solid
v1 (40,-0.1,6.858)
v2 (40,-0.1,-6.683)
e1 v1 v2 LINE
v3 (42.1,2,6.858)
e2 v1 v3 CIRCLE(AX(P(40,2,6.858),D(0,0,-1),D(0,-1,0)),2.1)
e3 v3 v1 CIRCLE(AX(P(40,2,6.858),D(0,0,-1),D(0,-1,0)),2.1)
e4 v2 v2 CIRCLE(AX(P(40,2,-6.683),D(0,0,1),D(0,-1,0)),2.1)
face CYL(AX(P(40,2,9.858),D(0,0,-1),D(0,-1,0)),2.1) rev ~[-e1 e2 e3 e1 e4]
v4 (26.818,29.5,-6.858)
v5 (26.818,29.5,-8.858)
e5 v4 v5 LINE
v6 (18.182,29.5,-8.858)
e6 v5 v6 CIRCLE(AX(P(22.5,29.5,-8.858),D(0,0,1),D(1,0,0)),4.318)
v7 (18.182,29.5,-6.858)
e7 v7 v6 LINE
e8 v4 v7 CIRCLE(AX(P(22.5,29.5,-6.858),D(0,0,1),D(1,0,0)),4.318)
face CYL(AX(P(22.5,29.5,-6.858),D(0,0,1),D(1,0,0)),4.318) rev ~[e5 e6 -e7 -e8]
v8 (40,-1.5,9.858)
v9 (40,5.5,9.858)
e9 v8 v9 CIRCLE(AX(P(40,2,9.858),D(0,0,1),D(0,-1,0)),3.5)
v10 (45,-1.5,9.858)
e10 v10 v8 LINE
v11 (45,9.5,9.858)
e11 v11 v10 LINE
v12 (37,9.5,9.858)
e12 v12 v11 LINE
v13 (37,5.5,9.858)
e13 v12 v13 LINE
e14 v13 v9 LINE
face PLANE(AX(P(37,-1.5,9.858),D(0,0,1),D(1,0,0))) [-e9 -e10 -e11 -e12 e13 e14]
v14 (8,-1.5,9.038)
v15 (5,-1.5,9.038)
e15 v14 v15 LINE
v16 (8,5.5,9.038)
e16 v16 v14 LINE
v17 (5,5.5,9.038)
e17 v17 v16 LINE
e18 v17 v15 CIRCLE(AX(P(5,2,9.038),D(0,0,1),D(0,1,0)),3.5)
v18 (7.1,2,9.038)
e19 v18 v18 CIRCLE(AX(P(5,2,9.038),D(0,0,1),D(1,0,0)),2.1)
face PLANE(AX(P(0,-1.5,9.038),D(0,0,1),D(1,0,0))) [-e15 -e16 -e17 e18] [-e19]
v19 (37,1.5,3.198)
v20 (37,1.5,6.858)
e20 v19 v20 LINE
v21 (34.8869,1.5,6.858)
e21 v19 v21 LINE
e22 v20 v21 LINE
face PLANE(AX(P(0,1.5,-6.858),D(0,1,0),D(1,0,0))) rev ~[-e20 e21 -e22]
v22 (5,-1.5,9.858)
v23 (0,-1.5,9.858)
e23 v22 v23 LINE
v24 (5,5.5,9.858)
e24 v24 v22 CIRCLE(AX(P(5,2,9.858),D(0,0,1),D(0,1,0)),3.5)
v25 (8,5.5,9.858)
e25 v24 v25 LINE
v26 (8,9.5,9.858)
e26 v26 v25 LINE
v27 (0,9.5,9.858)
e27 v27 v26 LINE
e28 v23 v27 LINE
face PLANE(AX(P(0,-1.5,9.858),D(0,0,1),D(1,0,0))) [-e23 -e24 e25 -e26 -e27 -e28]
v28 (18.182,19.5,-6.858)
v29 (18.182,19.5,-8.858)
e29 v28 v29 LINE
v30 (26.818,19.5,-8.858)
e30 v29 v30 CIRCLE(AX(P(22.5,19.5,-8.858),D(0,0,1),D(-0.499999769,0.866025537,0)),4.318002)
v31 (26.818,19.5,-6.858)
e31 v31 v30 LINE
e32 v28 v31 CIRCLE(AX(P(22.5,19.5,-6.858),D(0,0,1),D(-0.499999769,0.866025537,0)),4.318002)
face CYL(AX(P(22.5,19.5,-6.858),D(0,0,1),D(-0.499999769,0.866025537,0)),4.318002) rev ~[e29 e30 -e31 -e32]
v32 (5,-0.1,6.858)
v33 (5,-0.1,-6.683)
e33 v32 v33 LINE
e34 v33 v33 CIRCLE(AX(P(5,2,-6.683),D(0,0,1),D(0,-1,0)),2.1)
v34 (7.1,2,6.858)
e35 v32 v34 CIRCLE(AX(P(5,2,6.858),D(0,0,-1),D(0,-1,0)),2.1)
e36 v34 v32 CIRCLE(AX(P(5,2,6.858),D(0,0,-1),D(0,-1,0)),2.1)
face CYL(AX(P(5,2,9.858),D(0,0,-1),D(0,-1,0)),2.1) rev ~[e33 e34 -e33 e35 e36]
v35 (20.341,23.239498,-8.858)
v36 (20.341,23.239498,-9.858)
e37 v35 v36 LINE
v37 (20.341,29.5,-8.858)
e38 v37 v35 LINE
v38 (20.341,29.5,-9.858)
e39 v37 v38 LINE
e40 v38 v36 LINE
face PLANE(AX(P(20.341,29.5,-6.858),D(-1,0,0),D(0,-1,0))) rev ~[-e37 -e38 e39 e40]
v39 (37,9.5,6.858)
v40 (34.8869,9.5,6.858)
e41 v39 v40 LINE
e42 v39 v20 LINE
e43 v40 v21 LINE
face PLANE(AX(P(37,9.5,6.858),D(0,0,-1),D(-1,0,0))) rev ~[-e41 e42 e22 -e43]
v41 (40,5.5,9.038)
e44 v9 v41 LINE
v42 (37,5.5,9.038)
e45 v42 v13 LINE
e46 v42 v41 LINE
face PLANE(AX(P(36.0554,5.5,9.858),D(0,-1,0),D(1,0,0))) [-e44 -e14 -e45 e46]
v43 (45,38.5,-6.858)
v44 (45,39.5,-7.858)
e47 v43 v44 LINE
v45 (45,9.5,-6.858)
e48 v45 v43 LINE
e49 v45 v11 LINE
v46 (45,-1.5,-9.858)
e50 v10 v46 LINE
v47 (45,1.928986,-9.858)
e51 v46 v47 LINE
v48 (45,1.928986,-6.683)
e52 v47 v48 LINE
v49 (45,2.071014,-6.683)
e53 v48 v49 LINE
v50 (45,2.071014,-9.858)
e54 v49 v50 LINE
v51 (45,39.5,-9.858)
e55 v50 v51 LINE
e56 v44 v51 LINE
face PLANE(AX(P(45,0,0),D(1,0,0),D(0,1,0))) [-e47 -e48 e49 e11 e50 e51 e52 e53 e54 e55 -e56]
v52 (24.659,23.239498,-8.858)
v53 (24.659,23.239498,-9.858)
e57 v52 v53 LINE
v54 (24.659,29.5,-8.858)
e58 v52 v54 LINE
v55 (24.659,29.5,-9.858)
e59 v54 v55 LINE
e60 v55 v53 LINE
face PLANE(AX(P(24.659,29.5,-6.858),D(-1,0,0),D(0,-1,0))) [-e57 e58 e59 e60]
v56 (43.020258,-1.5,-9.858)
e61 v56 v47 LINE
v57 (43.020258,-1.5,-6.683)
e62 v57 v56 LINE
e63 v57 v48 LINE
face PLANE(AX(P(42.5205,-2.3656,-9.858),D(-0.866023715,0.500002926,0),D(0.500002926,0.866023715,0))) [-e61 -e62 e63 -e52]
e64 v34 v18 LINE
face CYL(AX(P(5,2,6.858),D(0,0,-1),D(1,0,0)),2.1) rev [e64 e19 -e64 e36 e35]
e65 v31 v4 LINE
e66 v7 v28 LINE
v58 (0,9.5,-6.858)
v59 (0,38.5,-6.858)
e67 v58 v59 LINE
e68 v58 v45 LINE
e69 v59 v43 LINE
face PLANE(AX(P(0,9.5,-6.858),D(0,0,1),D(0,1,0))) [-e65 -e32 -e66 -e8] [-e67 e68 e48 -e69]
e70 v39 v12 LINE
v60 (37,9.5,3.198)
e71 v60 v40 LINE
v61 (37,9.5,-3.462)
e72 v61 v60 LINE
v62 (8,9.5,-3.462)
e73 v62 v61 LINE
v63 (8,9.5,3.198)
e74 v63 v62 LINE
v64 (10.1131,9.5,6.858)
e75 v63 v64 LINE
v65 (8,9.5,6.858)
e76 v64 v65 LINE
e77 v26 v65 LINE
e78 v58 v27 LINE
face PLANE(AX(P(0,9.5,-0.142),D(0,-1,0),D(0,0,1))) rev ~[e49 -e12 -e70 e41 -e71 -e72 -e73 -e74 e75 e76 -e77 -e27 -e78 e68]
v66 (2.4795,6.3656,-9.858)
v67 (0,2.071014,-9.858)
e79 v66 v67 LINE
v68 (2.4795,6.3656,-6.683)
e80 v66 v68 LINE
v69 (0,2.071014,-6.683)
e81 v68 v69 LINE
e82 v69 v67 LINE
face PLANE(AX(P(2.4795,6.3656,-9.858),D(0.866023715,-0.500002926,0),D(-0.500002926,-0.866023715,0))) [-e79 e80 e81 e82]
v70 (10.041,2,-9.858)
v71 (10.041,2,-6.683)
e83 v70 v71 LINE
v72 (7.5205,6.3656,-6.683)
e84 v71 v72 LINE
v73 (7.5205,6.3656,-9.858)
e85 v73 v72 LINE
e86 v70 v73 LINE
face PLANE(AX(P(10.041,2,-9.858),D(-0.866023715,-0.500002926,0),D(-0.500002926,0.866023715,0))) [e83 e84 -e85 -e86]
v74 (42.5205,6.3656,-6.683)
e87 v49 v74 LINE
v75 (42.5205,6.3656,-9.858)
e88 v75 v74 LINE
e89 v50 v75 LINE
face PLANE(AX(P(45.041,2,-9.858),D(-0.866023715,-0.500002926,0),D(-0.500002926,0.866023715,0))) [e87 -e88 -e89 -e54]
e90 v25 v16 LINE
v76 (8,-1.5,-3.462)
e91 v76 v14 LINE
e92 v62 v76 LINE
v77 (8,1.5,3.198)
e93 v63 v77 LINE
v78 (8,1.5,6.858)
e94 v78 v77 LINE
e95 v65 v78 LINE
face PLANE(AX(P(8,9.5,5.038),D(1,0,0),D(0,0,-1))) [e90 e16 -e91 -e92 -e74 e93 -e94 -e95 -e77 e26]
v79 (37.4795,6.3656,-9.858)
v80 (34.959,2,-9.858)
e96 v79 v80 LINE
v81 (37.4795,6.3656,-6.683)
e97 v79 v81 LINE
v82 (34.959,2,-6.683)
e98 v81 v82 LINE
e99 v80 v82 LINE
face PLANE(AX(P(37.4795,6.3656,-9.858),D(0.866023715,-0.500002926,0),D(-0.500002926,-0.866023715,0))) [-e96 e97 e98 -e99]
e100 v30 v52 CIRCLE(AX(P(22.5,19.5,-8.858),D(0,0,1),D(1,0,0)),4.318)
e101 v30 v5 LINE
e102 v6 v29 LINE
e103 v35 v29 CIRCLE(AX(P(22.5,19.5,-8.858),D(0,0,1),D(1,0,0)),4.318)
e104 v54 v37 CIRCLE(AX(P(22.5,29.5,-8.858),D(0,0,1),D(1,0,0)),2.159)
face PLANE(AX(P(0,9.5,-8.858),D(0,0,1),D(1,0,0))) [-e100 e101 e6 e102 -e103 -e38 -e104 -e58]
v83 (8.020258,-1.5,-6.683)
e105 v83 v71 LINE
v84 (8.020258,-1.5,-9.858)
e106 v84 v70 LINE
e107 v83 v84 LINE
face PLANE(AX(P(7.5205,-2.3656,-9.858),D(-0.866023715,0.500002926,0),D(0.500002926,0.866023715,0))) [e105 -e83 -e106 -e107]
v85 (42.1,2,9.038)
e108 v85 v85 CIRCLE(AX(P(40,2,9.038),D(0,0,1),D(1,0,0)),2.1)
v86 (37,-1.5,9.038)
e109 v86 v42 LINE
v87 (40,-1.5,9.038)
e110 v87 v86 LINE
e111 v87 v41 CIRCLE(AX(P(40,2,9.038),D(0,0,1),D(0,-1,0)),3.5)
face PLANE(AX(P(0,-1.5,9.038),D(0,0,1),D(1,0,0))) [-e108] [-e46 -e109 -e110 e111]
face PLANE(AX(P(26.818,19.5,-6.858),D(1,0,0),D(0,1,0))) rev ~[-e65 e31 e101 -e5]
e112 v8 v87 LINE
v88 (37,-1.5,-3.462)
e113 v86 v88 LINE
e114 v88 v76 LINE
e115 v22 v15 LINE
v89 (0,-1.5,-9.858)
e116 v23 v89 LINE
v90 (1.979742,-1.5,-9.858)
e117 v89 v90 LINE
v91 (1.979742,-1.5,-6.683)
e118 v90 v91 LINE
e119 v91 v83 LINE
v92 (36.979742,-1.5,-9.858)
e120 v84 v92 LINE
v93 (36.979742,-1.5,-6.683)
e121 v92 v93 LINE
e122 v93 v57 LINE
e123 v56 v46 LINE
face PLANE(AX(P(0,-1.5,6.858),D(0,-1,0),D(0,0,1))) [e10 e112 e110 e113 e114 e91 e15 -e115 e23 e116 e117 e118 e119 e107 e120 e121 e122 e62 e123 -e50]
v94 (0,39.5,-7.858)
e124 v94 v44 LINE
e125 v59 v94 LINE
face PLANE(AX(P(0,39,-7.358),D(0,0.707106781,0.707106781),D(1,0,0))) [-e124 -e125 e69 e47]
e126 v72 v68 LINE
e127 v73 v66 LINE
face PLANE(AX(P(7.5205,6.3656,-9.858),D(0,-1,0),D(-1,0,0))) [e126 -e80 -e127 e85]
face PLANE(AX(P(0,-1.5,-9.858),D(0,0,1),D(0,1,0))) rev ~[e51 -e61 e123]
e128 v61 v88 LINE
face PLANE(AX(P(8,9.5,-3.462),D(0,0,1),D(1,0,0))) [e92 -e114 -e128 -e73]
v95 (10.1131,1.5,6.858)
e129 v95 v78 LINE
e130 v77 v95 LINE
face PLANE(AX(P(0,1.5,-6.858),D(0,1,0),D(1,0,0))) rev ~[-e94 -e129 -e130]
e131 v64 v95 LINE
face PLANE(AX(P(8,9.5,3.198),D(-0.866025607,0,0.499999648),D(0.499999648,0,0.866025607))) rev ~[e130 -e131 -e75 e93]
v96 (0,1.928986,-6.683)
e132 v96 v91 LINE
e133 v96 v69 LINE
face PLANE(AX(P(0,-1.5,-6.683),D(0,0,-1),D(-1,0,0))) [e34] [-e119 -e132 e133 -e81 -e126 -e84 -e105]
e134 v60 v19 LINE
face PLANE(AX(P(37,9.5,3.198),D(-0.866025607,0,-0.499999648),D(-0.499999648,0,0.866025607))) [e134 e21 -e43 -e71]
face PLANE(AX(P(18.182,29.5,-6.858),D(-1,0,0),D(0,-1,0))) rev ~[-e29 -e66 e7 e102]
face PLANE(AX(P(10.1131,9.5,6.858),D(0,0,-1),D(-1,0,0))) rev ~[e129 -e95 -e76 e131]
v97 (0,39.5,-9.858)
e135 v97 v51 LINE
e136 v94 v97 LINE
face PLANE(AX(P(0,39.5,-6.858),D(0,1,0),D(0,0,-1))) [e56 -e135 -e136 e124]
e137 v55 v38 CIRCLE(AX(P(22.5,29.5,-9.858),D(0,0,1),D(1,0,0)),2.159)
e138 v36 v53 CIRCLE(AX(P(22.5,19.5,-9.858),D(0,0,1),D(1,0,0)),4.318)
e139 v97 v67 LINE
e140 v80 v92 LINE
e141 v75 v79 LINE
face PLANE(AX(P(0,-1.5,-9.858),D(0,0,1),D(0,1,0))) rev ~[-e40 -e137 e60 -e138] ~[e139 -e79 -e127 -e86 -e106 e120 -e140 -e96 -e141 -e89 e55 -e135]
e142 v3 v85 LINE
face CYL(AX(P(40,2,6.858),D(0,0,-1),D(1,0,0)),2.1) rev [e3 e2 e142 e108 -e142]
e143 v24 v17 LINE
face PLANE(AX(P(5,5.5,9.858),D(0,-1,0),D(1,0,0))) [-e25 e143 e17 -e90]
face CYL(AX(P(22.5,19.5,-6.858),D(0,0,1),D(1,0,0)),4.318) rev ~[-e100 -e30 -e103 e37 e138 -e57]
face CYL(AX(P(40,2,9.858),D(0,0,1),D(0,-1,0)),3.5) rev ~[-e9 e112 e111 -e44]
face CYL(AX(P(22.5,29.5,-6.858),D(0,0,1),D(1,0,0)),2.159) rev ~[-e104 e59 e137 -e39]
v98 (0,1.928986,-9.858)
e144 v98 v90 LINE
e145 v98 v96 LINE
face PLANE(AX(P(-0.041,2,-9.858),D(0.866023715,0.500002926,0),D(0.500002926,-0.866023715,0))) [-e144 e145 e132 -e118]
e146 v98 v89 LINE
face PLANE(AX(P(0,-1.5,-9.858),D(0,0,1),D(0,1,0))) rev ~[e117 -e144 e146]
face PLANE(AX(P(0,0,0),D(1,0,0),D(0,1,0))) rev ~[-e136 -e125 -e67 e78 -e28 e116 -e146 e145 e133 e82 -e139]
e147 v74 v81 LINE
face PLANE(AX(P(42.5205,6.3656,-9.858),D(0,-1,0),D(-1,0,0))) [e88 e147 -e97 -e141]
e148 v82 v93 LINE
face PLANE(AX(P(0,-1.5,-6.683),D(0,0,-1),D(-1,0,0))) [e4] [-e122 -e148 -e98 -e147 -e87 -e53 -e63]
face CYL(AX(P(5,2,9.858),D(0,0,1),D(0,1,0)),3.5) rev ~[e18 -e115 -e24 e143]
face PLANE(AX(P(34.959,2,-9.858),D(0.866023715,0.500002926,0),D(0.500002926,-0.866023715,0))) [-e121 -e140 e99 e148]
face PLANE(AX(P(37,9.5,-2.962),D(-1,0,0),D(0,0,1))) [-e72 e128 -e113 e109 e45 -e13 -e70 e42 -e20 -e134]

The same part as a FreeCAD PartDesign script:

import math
import FreeCAD as App
import Part
import Sketcher
Q = App.Units.Quantity


def edges_at(feature, points):
    """Names of the edges that pass closest to the given points."""
    edges = feature.Shape.Edges
    near = lambda p: min(range(len(edges)), key=lambda i: edges[i].distToShape(Part.Vertex(*p))[0])
    return sorted({f"Edge{near(p) + 1}" for p in points})


def add_polygon(sketch, points):
    """Adds a closed chain of lines whose ends are joined by coincident constraints."""
    first, n = sketch.GeometryCount, len(points)
    for a, b in zip(points, points[1:] + points[:1]):
        sketch.addGeometry(Part.LineSegment(App.Vector(*a, 0), App.Vector(*b, 0)), False)
    for i in range(n):
        sketch.addConstraint(Sketcher.Constraint("Coincident", first + i, 2, first + (i + 1) % n, 1))

doc = App.newDocument("Part")
params = doc.addObject("Spreadsheet::Sheet", "Params")
for row, (alias, value) in enumerate([
    ("sketch1_height", "3 mm"),
    ("sketch1_width", "41 mm"),
    ("sketch1_width2", "30 mm"),
    ("pad1_length", "45 mm"),
    ("sketch2_diameter", "4.2 mm"),
    ("hole_diameter", "4.2 mm"),
    ("sketch3_radius", "14 mm"),
    ("sketch3_radius2", "1 mm"),
    ("sketch3_width", "12.7 mm"),
    ("sketch3_height", "1.5 mm"),
    ("pocket1_length", "0.82 mm"),
    ("sketch4_radius", "14 mm"),
    ("sketch4_diameter", "4.2 mm"),
    ("sketch4_radius2", "3.5 mm"),
    ("pocket2_length", "0.82 mm"),
    ("sketch5_diameter", "4.2 mm"),
    ("pocket3_length", "3.175 mm"),
    ("chamfer_size", "1 mm"),
    ("sketch7_height", "10 mm"),
    ("pocket5_length", "2 mm"),
    ("sketch8_width", "29 mm"),
    ("sketch8_height", "10.32 mm"),
    ("sketch9_width", "68 mm"),
    ("sketch10_diameter", "4.2 mm"),
    ("sketch10_width", "8 mm"),
    ("sketch10_height", "11 mm"),
    ("pad2_length", "3 mm"),
    ("sketch11_diameter", "4.2 mm"),
    ("sketch11_width", "8 mm"),
    ("sketch11_height", "11 mm"),
    ("pad3_length", "3 mm"),
    ("sketch12_radius", "14 mm"),
    ("sketch12_radius2", "1 mm"),
    ("sketch12_diameter", "4.2 mm"),
    ("sketch12_radius3", "3.5 mm"),
    ("sketch12_width", "35 mm"),
    ("pocket8_length", "0.82 mm"),
    ("sketch13_height", "3.66 mm"),
    ("pad4_length", "8 mm"),
], start=1):
    params.set(f"A{row}", alias)
    params.set(f"B{row}", "=" + value)
    params.setAlias(f"B{row}", alias)

body = doc.addObject("PartDesign::Body", "Body")

sketch1 = doc.addObject("Sketcher::SketchObject", "Sketch")
body.addObject(sketch1)
sketch1.AttachmentSupport = (doc.YZ_Plane, [""])
sketch1.MapMode = "FlatFace"
add_polygon(sketch1, [(-1.5, 9.9), (-1.5, -9.9), (39.5, -9.9), (39.5, -6.9), (9.5, -6.9), (9.5, 6.9), (39.5, 6.9), (39.5, 9.9)])
sketch1.addConstraint([
    Sketcher.Constraint("Vertical", 0),
    Sketcher.Constraint("Horizontal", 1),
    Sketcher.Constraint("Vertical", 2),
    Sketcher.Constraint("Horizontal", 3),
    Sketcher.Constraint("Vertical", 4),
    Sketcher.Constraint("Horizontal", 5),
    Sketcher.Constraint("Vertical", 6),
    Sketcher.Constraint("Horizontal", 7),
    Sketcher.Constraint("Symmetric", 2, 2, 5, 2, -1),
    Sketcher.Constraint("Equal", 2, 6),
    Sketcher.Constraint("DistanceY", 2, 1, 2, 2, Q("3 mm")),
    Sketcher.Constraint("DistanceX", 1, 1, 1, 2, Q("41 mm")),
    Sketcher.Constraint("DistanceX", 3, 2, 3, 1, Q("30 mm")),
    Sketcher.Constraint("DistanceY", 4, 1, 4, 2, Q("13.716 mm")),
    Sketcher.Constraint("DistanceX", 0, 2, -1, 1, Q("1.5 mm")),
])
sketch1.setExpression("Constraints[18]", "Params.sketch1_height")
sketch1.setExpression("Constraints[19]", "Params.sketch1_width")
sketch1.setExpression("Constraints[20]", "Params.sketch1_width2")
pad1 = doc.addObject("PartDesign::Pad", "Pad")
body.addObject(pad1)
pad1.Profile = sketch1
pad1.setExpression("Length", "Params.pad1_length")

sketch2 = doc.addObject("Sketcher::SketchObject", "Sketch001")
body.addObject(sketch2)
sketch2.AttachmentSupport = (doc.XY_Plane, [""])
sketch2.MapMode = "FlatFace"
sketch2.AttachmentOffset = App.Placement(App.Vector(0, 0, 9.858), App.Rotation())
sketch2.addGeometry([
    Part.Circle(App.Vector(5, 2, 0), App.Vector(0, 0, 1), 2.1),
    Part.Circle(App.Vector(40, 2, 0), App.Vector(0, 0, 1), 2.1),
], False)
sketch2.addConstraint([
    Sketcher.Constraint("Equal", 0, 1),
    Sketcher.Constraint("Horizontal", 0, 3, 1, 3),
    Sketcher.Constraint("Diameter", 0, Q("4.2 mm")),
    Sketcher.Constraint("DistanceX", -1, 1, 0, 3, Q("5 mm")),
    Sketcher.Constraint("DistanceY", -1, 1, 0, 3, Q("2 mm")),
    Sketcher.Constraint("DistanceX", -1, 1, 1, 3, Q("40 mm")),
])
sketch2.setExpression("Constraints[2]", "Params.sketch2_diameter")
doc.recompute()
hole = doc.addObject("PartDesign::Hole", "Hole")
body.addObject(hole)
hole.Profile = sketch2
hole.ThreadType = "None"
hole.setExpression("Diameter", "Params.hole_diameter")
hole.DepthType = "ThroughAll"

sketch3 = doc.addObject("Sketcher::SketchObject", "Sketch002")
body.addObject(sketch3)
sketch3.AttachmentSupport = (doc.XY_Plane, [""])
sketch3.MapMode = "FlatFace"
sketch3.AttachmentOffset = App.Placement(App.Vector(0, 0, 9.858), App.Rotation())
sketch3.addGeometry([
    Part.ArcOfCircle(Part.Circle(App.Vector(22.5, 2, 0), App.Vector(0, 0, 1), 14), math.radians(131), math.radians(409)),
    Part.LineSegment(App.Vector(31.6, 12.6, 0), App.Vector(31.6, 14.2, 0)),
    Part.ArcOfCircle(Part.Circle(App.Vector(30.6, 14.2, 0), App.Vector(0, 0, 1), 1), math.radians(0), math.radians(45)),
    Part.LineSegment(App.Vector(31.3, 14.9, 0), App.Vector(29.9, 16.4, 0)),
    Part.LineSegment(App.Vector(29.9, 16.4, 0), App.Vector(29.9, 17.9, 0)),
    Part.ArcOfCircle(Part.Circle(App.Vector(28.9, 17.9, 0), App.Vector(0, 0, 1), 1), math.radians(0), math.radians(90)),
    Part.LineSegment(App.Vector(28.9, 18.9, 0), App.Vector(16.1, 18.9, 0)),
    Part.ArcOfCircle(Part.Circle(App.Vector(16.1, 17.9, 0), App.Vector(0, 0, 1), 1), math.radians(90), math.radians(180)),
    Part.LineSegment(App.Vector(15.2, 17.9, 0), App.Vector(15.2, 16.4, 0)),
    Part.LineSegment(App.Vector(15.2, 16.4, 0), App.Vector(13.7, 14.9, 0)),
    Part.ArcOfCircle(Part.Circle(App.Vector(14.4, 14.2, 0), App.Vector(0, 0, 1), 1), math.radians(135), math.radians(180)),
    Part.LineSegment(App.Vector(13.4, 14.2, 0), App.Vector(13.4, 12.6, 0)),
], False)
sketch3.addConstraint([
    Sketcher.Constraint("Coincident", 0, 2, 1, 1),
    Sketcher.Constraint("Tangent", 1, 2, 2, 1),
    Sketcher.Constraint("Tangent", 2, 2, 3, 1),
    Sketcher.Constraint("Coincident", 3, 2, 4, 1),
    Sketcher.Constraint("Tangent", 4, 2, 5, 1),
    Sketcher.Constraint("Tangent", 5, 2, 6, 1),
    Sketcher.Constraint("Tangent", 6, 2, 7, 1),
    Sketcher.Constraint("Tangent", 7, 2, 8, 1),
    Sketcher.Constraint("Coincident", 8, 2, 9, 1),
    Sketcher.Constraint("Tangent", 9, 2, 10, 1),
    Sketcher.Constraint("Tangent", 10, 2, 11, 1),
    Sketcher.Constraint("Coincident", 11, 2, 0, 1),
    Sketcher.Constraint("Vertical", 1),
    Sketcher.Constraint("Vertical", 4),
    Sketcher.Constraint("Horizontal", 6),
    Sketcher.Constraint("Vertical", 8),
    Sketcher.Constraint("Vertical", 11),
    Sketcher.Constraint("Equal", 2, 5),
    Sketcher.Constraint("Equal", 5, 7),
    Sketcher.Constraint("Equal", 7, 10),
    Sketcher.Constraint("Perpendicular", 3, 9),
    Sketcher.Constraint("Horizontal", 2, 3, 10, 3),
    Sketcher.Constraint("Horizontal", 3, 2, 8, 2),
    Sketcher.Constraint("Horizontal", 2, 2, 9, 2),
    Sketcher.Constraint("Horizontal", 0, 2, 11, 2),
    Sketcher.Constraint("Radius", 0, Q("14 mm")),
    Sketcher.Constraint("Radius", 2, Q("1 mm")),
    Sketcher.Constraint("DistanceX", 6, 2, 6, 1, Q("12.7 mm")),
    Sketcher.Constraint("DistanceY", 4, 1, 4, 2, Q("1.5 mm")),
    Sketcher.Constraint("DistanceY", -1, 1, 0, 3, Q("2 mm")),
    Sketcher.Constraint("DistanceX", -1, 1, 0, 3, Q("22.5 mm")),
    Sketcher.Constraint("DistanceY", 1, 1, 1, 2, Q("1.5857 mm")),
    Sketcher.Constraint("DistanceY", -1, 1, 0, 2, Q("12.624 mm")),
])
sketch3.setExpression("Constraints[25]", "Params.sketch3_radius")
sketch3.setExpression("Constraints[26]", "Params.sketch3_radius2")
sketch3.setExpression("Constraints[27]", "Params.sketch3_width")
sketch3.setExpression("Constraints[28]", "Params.sketch3_height")
pocket1 = doc.addObject("PartDesign::Pocket", "Pocket")
body.addObject(pocket1)
pocket1.Profile = sketch3
pocket1.setExpression("Length", "Params.pocket1_length")

sketch4 = doc.addObject("Sketcher::SketchObject", "Sketch003")
body.addObject(sketch4)
sketch4.AttachmentSupport = (doc.XY_Plane, [""])
sketch4.MapMode = "FlatFace"
sketch4.AttachmentOffset = App.Placement(App.Vector(0, 0, 9.858), App.Rotation())
sketch4.addGeometry([
    Part.ArcOfCircle(Part.Circle(App.Vector(22.5, 2, 0), App.Vector(0, 0, 1), 14), math.radians(-14), math.radians(14)),
    Part.LineSegment(App.Vector(36.1, -1.5, 0), App.Vector(40, -1.5, 0)),
    Part.ArcOfCircle(Part.Circle(App.Vector(40, 2, 0), App.Vector(0, 0, 1), 3.5), math.radians(-90), math.radians(90)),
    Part.LineSegment(App.Vector(40, 5.5, 0), App.Vector(36.1, 5.5, 0)),
    Part.Circle(App.Vector(40, 2, 0), App.Vector(0, 0, 1), 2.1),
    Part.LineSegment(App.Vector(5, -1.5, 0), App.Vector(8.9, -1.5, 0)),
    Part.ArcOfCircle(Part.Circle(App.Vector(22.5, 2, 0), App.Vector(0, 0, 1), 14), math.radians(166), math.radians(194)),
    Part.LineSegment(App.Vector(8.9, 5.5, 0), App.Vector(5, 5.5, 0)),
    Part.ArcOfCircle(Part.Circle(App.Vector(5, 2, 0), App.Vector(0, 0, 1), 3.5), math.radians(90), math.radians(270)),
    Part.Circle(App.Vector(5, 2, 0), App.Vector(0, 0, 1), 2.1),
], False)
sketch4.addConstraint([
    Sketcher.Constraint("Coincident", 0, 1, 1, 1),
    Sketcher.Constraint("Tangent", 1, 2, 2, 1),
    Sketcher.Constraint("Tangent", 2, 2, 3, 1),
    Sketcher.Constraint("Coincident", 3, 2, 0, 2),
    Sketcher.Constraint("Coincident", 5, 2, 6, 2),
    Sketcher.Constraint("Coincident", 6, 1, 7, 1),
    Sketcher.Constraint("Tangent", 7, 2, 8, 1),
    Sketcher.Constraint("Tangent", 8, 2, 5, 1),
    Sketcher.Constraint("Horizontal", 1),
    Sketcher.Constraint("Horizontal", 3),
    Sketcher.Constraint("Horizontal", 5),
    Sketcher.Constraint("Horizontal", 7),
    Sketcher.Constraint("Coincident", 4, 3, 2, 3),
    Sketcher.Constraint("Coincident", 6, 3, 0, 3),
    Sketcher.Constraint("Coincident", 9, 3, 8, 3),
    Sketcher.Constraint("Equal", 0, 6),
    Sketcher.Constraint("Equal", 2, 8),
    Sketcher.Constraint("Equal", 4, 9),
    Sketcher.Constraint("Horizontal", 0, 3, 2, 3),
    Sketcher.Constraint("Horizontal", 6, 3, 8, 3),
    Sketcher.Constraint("Equal", 3, 5),
    Sketcher.Constraint("Radius", 0, Q("14 mm")),
    Sketcher.Constraint("Diameter", 4, Q("4.2 mm")),
    Sketcher.Constraint("Radius", 2, Q("3.5 mm")),
    Sketcher.Constraint("DistanceY", -1, 1, 0, 3, Q("2 mm")),
    Sketcher.Constraint("DistanceX", -1, 1, 2, 3, Q("40 mm")),
    Sketcher.Constraint("DistanceX", -1, 1, 8, 3, Q("5 mm")),
])
sketch4.setExpression("Constraints[21]", "Params.sketch4_radius")
sketch4.setExpression("Constraints[22]", "Params.sketch4_diameter")
sketch4.setExpression("Constraints[23]", "Params.sketch4_radius2")
pocket2 = doc.addObject("PartDesign::Pocket", "Pocket001")
body.addObject(pocket2)
pocket2.Profile = sketch4
pocket2.setExpression("Length", "Params.pocket2_length")

sketch5 = doc.addObject("Sketcher::SketchObject", "Sketch004")
body.addObject(sketch5)
sketch5.AttachmentSupport = (doc.XY_Plane, [""])
sketch5.MapMode = "FlatFace"
sketch5.AttachmentOffset = App.Placement(App.Vector(0, 0, -9.858), App.Rotation())
add_polygon(sketch5, [(37.5, -2.4), (35, 2), (37.5, 6.4), (42.5, 6.4), (45, 2), (42.5, -2.4)])
sketch5.addGeometry(Part.Circle(App.Vector(40, 2, 0), App.Vector(0, 0, 1), 2.1), False)
add_polygon(sketch5, [(2.5, -2.4), (0, 2), (2.5, 6.4), (7.5, 6.4), (10, 2), (7.5, -2.4)])
sketch5.addGeometry(Part.Circle(App.Vector(5, 2, 0), App.Vector(0, 0, 1), 2.1), False)
sketch5.addConstraint([
    Sketcher.Constraint("Horizontal", 2),
    Sketcher.Constraint("Horizontal", 5),
    Sketcher.Constraint("Horizontal", 9),
    Sketcher.Constraint("Horizontal", 12),
    Sketcher.Constraint("Equal", 6, 13),
    Sketcher.Constraint("Parallel", 0, 3),
    Sketcher.Constraint("Parallel", 1, 4),
    Sketcher.Constraint("Parallel", 3, 7),
    Sketcher.Constraint("Parallel", 4, 8),
    Sketcher.Constraint("Parallel", 7, 10),
    Sketcher.Constraint("Parallel", 8, 11),
    Sketcher.Constraint("Horizontal", 6, 3, 13, 3),
    Sketcher.Constraint("Horizontal", 13, 3, 0, 2),
    Sketcher.Constraint("Horizontal", 0, 2, 3, 2),
    Sketcher.Constraint("Horizontal", 3, 2, 7, 2),
    Sketcher.Constraint("Horizontal", 2, 2, 8, 2),
    Sketcher.Constraint("Horizontal", 7, 2, 10, 2),
    Sketcher.Constraint("Horizontal", 5, 2, 11, 2),
    Sketcher.Constraint("Vertical", 2, 2, 4, 2),
    Sketcher.Constraint("Vertical", 1, 2, 5, 2),
    Sketcher.Constraint("Equal", 5, 9),
    Sketcher.Constraint("Diameter", 6, Q("4.2 mm")),
    Sketcher.Constraint("Angle", 0, Q("120.0002 deg")),
    Sketcher.Constraint("DistanceX", -1, 1, 6, 3, Q("40 mm")),
    Sketcher.Constraint("DistanceY", -1, 1, 6, 3, Q("2 mm")),
    Sketcher.Constraint("DistanceX", -1, 1, 13, 3, Q("5 mm")),
    Sketcher.Constraint("DistanceX", 7, 2, 0, 2, Q("35 mm")),
    Sketcher.Constraint("DistanceY", 4, 2, 2, 2, Q("8.7312 mm")),
    Sketcher.Constraint("DistanceX", 2, 1, 2, 2, Q("5.041 mm")),
    Sketcher.Constraint("DistanceX", -1, 1, 0, 2, Q("34.959 mm")),
])
sketch5.setExpression("Constraints[33]", "Params.sketch5_diameter")
pocket3 = doc.addObject("PartDesign::Pocket", "Pocket002")
body.addObject(pocket3)
pocket3.Profile = sketch5
pocket3.setExpression("Length", "Params.pocket3_length")
pocket3.Reversed = True
doc.recompute()

chamfer = doc.addObject("PartDesign::Chamfer", "Chamfer")
body.addObject(chamfer)
chamfer.Base = (pocket3, edges_at(pocket3, [(22.5, 39.5, -6.858), (22.5, 39.5, 6.858)]))
chamfer.setExpression("Size", "Params.chamfer_size")

sketch6 = doc.addObject("Sketcher::SketchObject", "Sketch005")
body.addObject(sketch6)
sketch6.AttachmentSupport = (doc.XY_Plane, [""])
sketch6.MapMode = "FlatFace"
sketch6.AttachmentOffset = App.Placement(App.Vector(0, 0, -6.858), App.Rotation())
sketch6.addGeometry([
    Part.LineSegment(App.Vector(24.7, 23.2, 0), App.Vector(24.7, 29.5, 0)),
    Part.ArcOfCircle(Part.Circle(App.Vector(22.5, 29.5, 0), App.Vector(0, 0, 1), 2.2), math.radians(0), math.radians(180)),
    Part.LineSegment(App.Vector(20.3, 29.5, 0), App.Vector(20.3, 23.2, 0)),
    Part.ArcOfCircle(Part.Circle(App.Vector(22.5, 19.5, 0), App.Vector(0, 0, 1), 4.3), math.radians(120), math.radians(420)),
], False)
sketch6.addConstraint([
    Sketcher.Constraint("Tangent", 0, 2, 1, 1),
    Sketcher.Constraint("Tangent", 1, 2, 2, 1),
    Sketcher.Constraint("Coincident", 2, 2, 3, 1),
    Sketcher.Constraint("Coincident", 3, 2, 0, 1),
    Sketcher.Constraint("Vertical", 0),
    Sketcher.Constraint("Vertical", 2),
    Sketcher.Constraint("Horizontal", 2, 2, 3, 2),
    Sketcher.Constraint("Radius", 1, Q("2.159 mm")),
    Sketcher.Constraint("Radius", 3, Q("4.318 mm")),
    Sketcher.Constraint("DistanceY", 3, 3, 1, 3, Q("10 mm")),
    Sketcher.Constraint("DistanceX", -1, 1, 1, 3, Q("22.5 mm")),
    Sketcher.Constraint("DistanceY", -1, 1, 1, 3, Q("29.5 mm")),
])
pocket4 = doc.addObject("PartDesign::Pocket", "Pocket003")
body.addObject(pocket4)
pocket4.Profile = sketch6
pocket4.Type = "ThroughAll"

sketch7 = doc.addObject("Sketcher::SketchObject", "Sketch006")
body.addObject(sketch7)
sketch7.AttachmentSupport = (doc.XY_Plane, [""])
sketch7.MapMode = "FlatFace"
sketch7.AttachmentOffset = App.Placement(App.Vector(0, 0, -6.858), App.Rotation())
sketch7.addGeometry([
    Part.ArcOfCircle(Part.Circle(App.Vector(22.5, 19.5, 0), App.Vector(0, 0, 1), 4.3), math.radians(180), math.radians(360)),
    Part.LineSegment(App.Vector(26.8, 19.5, 0), App.Vector(26.8, 29.5, 0)),
    Part.ArcOfCircle(Part.Circle(App.Vector(22.5, 29.5, 0), App.Vector(0, 0, 1), 4.3), math.radians(0), math.radians(180)),
    Part.LineSegment(App.Vector(18.2, 29.5, 0), App.Vector(18.2, 19.5, 0)),
    Part.ArcOfCircle(Part.Circle(App.Vector(22.5, 29.5, 0), App.Vector(0, 0, 1), 4.3), math.radians(-120), math.radians(-60)),
    Part.LineSegment(App.Vector(20.3, 25.8, 0), App.Vector(20.3, 29.5, 0)),
    Part.ArcOfCircle(Part.Circle(App.Vector(22.5, 29.5, 0), App.Vector(0, 0, 1), 2.2), math.radians(0), math.radians(180)),
    Part.LineSegment(App.Vector(24.7, 29.5, 0), App.Vector(24.7, 25.8, 0)),
], False)
sketch7.addConstraint([
    Sketcher.Constraint("Tangent", 0, 2, 1, 1),
    Sketcher.Constraint("Tangent", 1, 2, 2, 1),
    Sketcher.Constraint("Tangent", 2, 2, 3, 1),
    Sketcher.Constraint("Tangent", 3, 2, 0, 1),
    Sketcher.Constraint("Coincident", 4, 1, 5, 1),
    Sketcher.Constraint("Tangent", 5, 2, 6, 2),
    Sketcher.Constraint("Tangent", 6, 1, 7, 1),
    Sketcher.Constraint("Coincident", 7, 2, 4, 2),
    Sketcher.Constraint("Vertical", 1),
    Sketcher.Constraint("Vertical", 3),
    Sketcher.Constraint("Vertical", 5),
    Sketcher.Constraint("Vertical", 7),
    Sketcher.Constraint("Coincident", 4, 3, 2, 3),
    Sketcher.Constraint("Coincident", 6, 3, 2, 3),
    Sketcher.Constraint("Equal", 2, 4),
    Sketcher.Constraint("Radius", 0, Q("4.318 mm")),
    Sketcher.Constraint("Radius", 6, Q("2.159 mm")),
    Sketcher.Constraint("DistanceY", 1, 1, 1, 2, Q("10 mm")),
    Sketcher.Constraint("DistanceX", -1, 1, 0, 3, Q("22.5 mm")),
    Sketcher.Constraint("DistanceY", -1, 1, 0, 3, Q("19.5 mm")),
])
sketch7.setExpression("Constraints[17]", "Params.sketch7_height")
pocket5 = doc.addObject("PartDesign::Pocket", "Pocket004")
body.addObject(pocket5)
pocket5.Profile = sketch7
pocket5.setExpression("Length", "Params.pocket5_length")

sketch8 = doc.addObject("Sketcher::SketchObject", "Sketch007")
body.addObject(sketch8)
sketch8.AttachmentSupport = (doc.XZ_Plane, [""])
sketch8.MapMode = "FlatFace"
sketch8.AttachmentOffset = App.Placement(App.Vector(0, 0, -9.5), App.Rotation())
add_polygon(sketch8, [(8, 7), (37, 7), (37, -3), (8, -3)])
sketch8.addConstraint([
    Sketcher.Constraint("Horizontal", 0),
    Sketcher.Constraint("Vertical", 1),
    Sketcher.Constraint("Horizontal", 2),
    Sketcher.Constraint("Vertical", 3),
    Sketcher.Constraint("DistanceX", 0, 1, 0, 2, Q("29 mm")),
    Sketcher.Constraint("DistanceX", -1, 1, 0, 2, Q("37 mm")),
    Sketcher.Constraint("DistanceY", 1, 2, 1, 1, Q("10.32 mm")),
    Sketcher.Constraint("DistanceY", -1, 1, 0, 2, Q("6.858 mm")),
])
sketch8.setExpression("Constraints[8]", "Params.sketch8_width")
sketch8.setExpression("Constraints[10]", "Params.sketch8_height")
pocket6 = doc.addObject("PartDesign::Pocket", "Pocket005")
body.addObject(pocket6)
pocket6.Profile = sketch8
pocket6.Type = "ThroughAll"
pocket6.Reversed = True

sketch9 = doc.addObject("Sketcher::SketchObject", "Sketch008")
body.addObject(sketch9)
sketch9.AttachmentSupport = (doc.YZ_Plane, [""])
sketch9.MapMode = "FlatFace"
add_polygon(sketch9, [(-18, 37), (50, 37), (50, 7), (-18, 7)])
sketch9.addConstraint([
    Sketcher.Constraint("Horizontal", 0),
    Sketcher.Constraint("Vertical", 1),
    Sketcher.Constraint("Horizontal", 2),
    Sketcher.Constraint("Vertical", 3),
    Sketcher.Constraint("DistanceX", 0, 1, 0, 2, Q("68 mm")),
    Sketcher.Constraint("DistanceX", -1, 1, 0, 2, Q("50 mm")),
    Sketcher.Constraint("DistanceY", 1, 2, 1, 1, Q("30.3374 mm")),
    Sketcher.Constraint("DistanceY", -1, 1, 1, 2, Q("6.858 mm")),
])
sketch9.setExpression("Constraints[8]", "Params.sketch9_width")
pocket7 = doc.addObject("PartDesign::Pocket", "Pocket006")
body.addObject(pocket7)
pocket7.Profile = sketch9
pocket7.Type = "ThroughAll"
pocket7.Reversed = True

sketch10 = doc.addObject("Sketcher::SketchObject", "Sketch009")
body.addObject(sketch10)
sketch10.AttachmentSupport = (doc.XY_Plane, [""])
sketch10.MapMode = "FlatFace"
sketch10.AttachmentOffset = App.Placement(App.Vector(0, 0, 6.858), App.Rotation())
add_polygon(sketch10, [(8, 9.5), (0, 9.5), (0, -1.5), (8, -1.5)])
sketch10.addGeometry(Part.Circle(App.Vector(5, 2, 0), App.Vector(0, 0, 1), 2.1), False)
sketch10.addConstraint([
    Sketcher.Constraint("Horizontal", 0),
    Sketcher.Constraint("Vertical", 1),
    Sketcher.Constraint("Horizontal", 2),
    Sketcher.Constraint("Vertical", 3),
    Sketcher.Constraint("PointOnObject", 0, 2, -2),
    Sketcher.Constraint("Diameter", 4, Q("4.2 mm")),
    Sketcher.Constraint("DistanceX", 0, 2, 0, 1, Q("8 mm")),
    Sketcher.Constraint("DistanceY", 1, 2, 1, 1, Q("11 mm")),
    Sketcher.Constraint("DistanceX", -1, 1, 4, 3, Q("5 mm")),
    Sketcher.Constraint("DistanceY", -1, 1, 4, 3, Q("2 mm")),
    Sketcher.Constraint("DistanceY", -1, 1, 0, 2, Q("9.5 mm")),
])
sketch10.setExpression("Constraints[9]", "Params.sketch10_diameter")
sketch10.setExpression("Constraints[10]", "Params.sketch10_width")
sketch10.setExpression("Constraints[11]", "Params.sketch10_height")
pad2 = doc.addObject("PartDesign::Pad", "Pad001")
body.addObject(pad2)
pad2.Profile = sketch10
pad2.setExpression("Length", "Params.pad2_length")

sketch11 = doc.addObject("Sketcher::SketchObject", "Sketch010")
body.addObject(sketch11)
sketch11.AttachmentSupport = (doc.XY_Plane, [""])
sketch11.MapMode = "FlatFace"
sketch11.AttachmentOffset = App.Placement(App.Vector(0, 0, 6.858), App.Rotation())
add_polygon(sketch11, [(45, 9.5), (37, 9.5), (37, -1.5), (45, -1.5)])
sketch11.addGeometry(Part.Circle(App.Vector(40, 2, 0), App.Vector(0, 0, 1), 2.1), False)
sketch11.addConstraint([
    Sketcher.Constraint("Horizontal", 0),
    Sketcher.Constraint("Vertical", 1),
    Sketcher.Constraint("Horizontal", 2),
    Sketcher.Constraint("Vertical", 3),
    Sketcher.Constraint("Diameter", 4, Q("4.2 mm")),
    Sketcher.Constraint("DistanceX", 0, 2, 0, 1, Q("8 mm")),
    Sketcher.Constraint("DistanceY", 1, 2, 1, 1, Q("11 mm")),
    Sketcher.Constraint("DistanceX", -1, 1, 4, 3, Q("40 mm")),
    Sketcher.Constraint("DistanceY", -1, 1, 4, 3, Q("2 mm")),
    Sketcher.Constraint("DistanceX", -1, 1, 0, 2, Q("37 mm")),
    Sketcher.Constraint("DistanceY", -1, 1, 0, 2, Q("9.5 mm")),
])
sketch11.setExpression("Constraints[8]", "Params.sketch11_diameter")
sketch11.setExpression("Constraints[9]", "Params.sketch11_width")
sketch11.setExpression("Constraints[10]", "Params.sketch11_height")
pad3 = doc.addObject("PartDesign::Pad", "Pad002")
body.addObject(pad3)
pad3.Profile = sketch11
pad3.setExpression("Length", "Params.pad3_length")

sketch12 = doc.addObject("Sketcher::SketchObject", "Sketch011")
body.addObject(sketch12)
sketch12.AttachmentSupport = (doc.XY_Plane, [""])
sketch12.MapMode = "FlatFace"
sketch12.AttachmentOffset = App.Placement(App.Vector(0, 0, 9.858), App.Rotation())
sketch12.addGeometry([
    Part.LineSegment(App.Vector(5, -1.5, 0), App.Vector(40, -1.5, 0)),
    Part.ArcOfCircle(Part.Circle(App.Vector(40, 2, 0), App.Vector(0, 0, 1), 3.5), math.radians(-90), math.radians(90)),
    Part.LineSegment(App.Vector(40, 5.5, 0), App.Vector(36.1, 5.5, 0)),
    Part.ArcOfCircle(Part.Circle(App.Vector(22.5, 2, 0), App.Vector(0, 0, 1), 14), math.radians(14), math.radians(49)),
    Part.LineSegment(App.Vector(31.6, 12.6, 0), App.Vector(31.6, 14.2, 0)),
    Part.ArcOfCircle(Part.Circle(App.Vector(30.6, 14.2, 0), App.Vector(0, 0, 1), 1), math.radians(0), math.radians(45)),
    Part.LineSegment(App.Vector(31.3, 14.9, 0), App.Vector(29.9, 16.4, 0)),
    Part.LineSegment(App.Vector(29.9, 16.4, 0), App.Vector(29.9, 17.9, 0)),
    Part.ArcOfCircle(Part.Circle(App.Vector(28.9, 17.9, 0), App.Vector(0, 0, 1), 1), math.radians(0), math.radians(90)),
    Part.LineSegment(App.Vector(28.9, 18.9, 0), App.Vector(16.1, 18.9, 0)),
    Part.ArcOfCircle(Part.Circle(App.Vector(16.1, 17.9, 0), App.Vector(0, 0, 1), 1), math.radians(90), math.radians(180)),
    Part.LineSegment(App.Vector(15.2, 17.9, 0), App.Vector(15.2, 16.4, 0)),
    Part.LineSegment(App.Vector(15.2, 16.4, 0), App.Vector(13.7, 14.9, 0)),
    Part.ArcOfCircle(Part.Circle(App.Vector(14.4, 14.2, 0), App.Vector(0, 0, 1), 1), math.radians(135), math.radians(180)),
    Part.LineSegment(App.Vector(13.4, 14.2, 0), App.Vector(13.4, 12.6, 0)),
    Part.ArcOfCircle(Part.Circle(App.Vector(22.5, 2, 0), App.Vector(0, 0, 1), 14), math.radians(131), math.radians(166)),
    Part.LineSegment(App.Vector(8.9, 5.5, 0), App.Vector(5, 5.5, 0)),
    Part.ArcOfCircle(Part.Circle(App.Vector(5, 2, 0), App.Vector(0, 0, 1), 3.5), math.radians(90), math.radians(270)),
    Part.Circle(App.Vector(5, 2, 0), App.Vector(0, 0, 1), 2.1),
    Part.Circle(App.Vector(40, 2, 0), App.Vector(0, 0, 1), 2.1),
], False)
sketch12.addConstraint([
    Sketcher.Constraint("Tangent", 0, 2, 1, 1),
    Sketcher.Constraint("Tangent", 1, 2, 2, 1),
    Sketcher.Constraint("Coincident", 2, 2, 3, 1),
    Sketcher.Constraint("Coincident", 3, 2, 4, 1),
    Sketcher.Constraint("Tangent", 4, 2, 5, 1),
    Sketcher.Constraint("Tangent", 5, 2, 6, 1),
    Sketcher.Constraint("Coincident", 6, 2, 7, 1),
    Sketcher.Constraint("Tangent", 7, 2, 8, 1),
    Sketcher.Constraint("Tangent", 8, 2, 9, 1),
    Sketcher.Constraint("Tangent", 9, 2, 10, 1),
    Sketcher.Constraint("Tangent", 10, 2, 11, 1),
    Sketcher.Constraint("Coincident", 11, 2, 12, 1),
    Sketcher.Constraint("Tangent", 12, 2, 13, 1),
    Sketcher.Constraint("Tangent", 13, 2, 14, 1),
    Sketcher.Constraint("Coincident", 14, 2, 15, 1),
    Sketcher.Constraint("Coincident", 15, 2, 16, 1),
    Sketcher.Constraint("Tangent", 16, 2, 17, 1),
    Sketcher.Constraint("Tangent", 17, 2, 0, 1),
    Sketcher.Constraint("Horizontal", 0),
    Sketcher.Constraint("Horizontal", 2),
    Sketcher.Constraint("Vertical", 4),
    Sketcher.Constraint("Vertical", 7),
    Sketcher.Constraint("Horizontal", 9),
    Sketcher.Constraint("Vertical", 11),
    Sketcher.Constraint("Vertical", 14),
    Sketcher.Constraint("Horizontal", 16),
    Sketcher.Constraint("Coincident", 15, 3, 3, 3),
    Sketcher.Constraint("Coincident", 18, 3, 17, 3),
    Sketcher.Constraint("Coincident", 19, 3, 1, 3),
    Sketcher.Constraint("Equal", 5, 8),
    Sketcher.Constraint("Equal", 8, 10),
    Sketcher.Constraint("Equal", 10, 13),
    Sketcher.Constraint("Equal", 3, 15),
    Sketcher.Constraint("Equal", 1, 17),
    Sketcher.Constraint("Equal", 18, 19),
    Sketcher.Constraint("Perpendicular", 6, 12),
    Sketcher.Constraint("Horizontal", 1, 3, 3, 3),
    Sketcher.Constraint("Horizontal", 5, 3, 13, 3),
    Sketcher.Constraint("Horizontal", 6, 2, 11, 2),
    Sketcher.Constraint("Horizontal", 5, 2, 12, 2),
    Sketcher.Constraint("Horizontal", 3, 2, 14, 2),
    Sketcher.Constraint("Equal", 2, 16),
    Sketcher.Constraint("Radius", 3, Q("14 mm")),
    Sketcher.Constraint("Radius", 5, Q("1 mm")),
    Sketcher.Constraint("Diameter", 18, Q("4.2 mm")),
    Sketcher.Constraint("Radius", 1, Q("3.5 mm")),
    Sketcher.Constraint("DistanceX", 0, 1, 0, 2, Q("35 mm")),
    Sketcher.Constraint("DistanceX", 9, 2, 9, 1, Q("12.7 mm")),
    Sketcher.Constraint("DistanceY", 7, 1, 7, 2, Q("1.5 mm")),
    Sketcher.Constraint("DistanceX", -1, 1, 1, 3, Q("40 mm")),
    Sketcher.Constraint("DistanceY", -1, 1, 1, 3, Q("2 mm")),
    Sketcher.Constraint("DistanceY", 4, 1, 4, 2, Q("1.5857 mm")),
    Sketcher.Constraint("DistanceY", -1, 1, 3, 2, Q("12.624 mm")),
])
sketch12.setExpression("Constraints[42]", "Params.sketch12_radius")
sketch12.setExpression("Constraints[43]", "Params.sketch12_radius2")
sketch12.setExpression("Constraints[44]", "Params.sketch12_diameter")
sketch12.setExpression("Constraints[45]", "Params.sketch12_radius3")
sketch12.setExpression("Constraints[46]", "Params.sketch12_width")
pocket8 = doc.addObject("PartDesign::Pocket", "Pocket007")
body.addObject(pocket8)
pocket8.Profile = sketch12
pocket8.setExpression("Length", "Params.pocket8_length")

sketch13 = doc.addObject("Sketcher::SketchObject", "Sketch012")
body.addObject(sketch13)
sketch13.AttachmentSupport = (doc.XZ_Plane, [""])
sketch13.MapMode = "FlatFace"
sketch13.AttachmentOffset = App.Placement(App.Vector(0, 0, -9.5), App.Rotation())
add_polygon(sketch13, [(37, 6.9), (37, 3.2), (34.9, 6.9)])
add_polygon(sketch13, [(8, 6.9), (10.1, 6.9), (8, 3.2)])
sketch13.addConstraint([
    Sketcher.Constraint("Vertical", 0),
    Sketcher.Constraint("Horizontal", 2),
    Sketcher.Constraint("Horizontal", 3),
    Sketcher.Constraint("Vertical", 5),
    Sketcher.Constraint("Horizontal", 2, 2, 3, 2),
    Sketcher.Constraint("Horizontal", 0, 2, 4, 2),
    Sketcher.Constraint("Equal", 2, 3),
    Sketcher.Constraint("Angle", 1, Q("120 deg")),
    Sketcher.Constraint("DistanceX", -1, 1, 0, 2, Q("37 mm")),
    Sketcher.Constraint("DistanceX", -1, 1, 4, 2, Q("8 mm")),
    Sketcher.Constraint("DistanceY", 0, 2, 0, 1, Q("3.66 mm")),
    Sketcher.Constraint("DistanceY", -1, 1, 0, 2, Q("3.198 mm")),
])
sketch13.setExpression("Constraints[16]", "Params.sketch13_height")
pad4 = doc.addObject("PartDesign::Pad", "Pad003")
body.addObject(pad4)
pad4.Profile = sketch13
pad4.setExpression("Length", "Params.pad4_length")

doc.recompute()
